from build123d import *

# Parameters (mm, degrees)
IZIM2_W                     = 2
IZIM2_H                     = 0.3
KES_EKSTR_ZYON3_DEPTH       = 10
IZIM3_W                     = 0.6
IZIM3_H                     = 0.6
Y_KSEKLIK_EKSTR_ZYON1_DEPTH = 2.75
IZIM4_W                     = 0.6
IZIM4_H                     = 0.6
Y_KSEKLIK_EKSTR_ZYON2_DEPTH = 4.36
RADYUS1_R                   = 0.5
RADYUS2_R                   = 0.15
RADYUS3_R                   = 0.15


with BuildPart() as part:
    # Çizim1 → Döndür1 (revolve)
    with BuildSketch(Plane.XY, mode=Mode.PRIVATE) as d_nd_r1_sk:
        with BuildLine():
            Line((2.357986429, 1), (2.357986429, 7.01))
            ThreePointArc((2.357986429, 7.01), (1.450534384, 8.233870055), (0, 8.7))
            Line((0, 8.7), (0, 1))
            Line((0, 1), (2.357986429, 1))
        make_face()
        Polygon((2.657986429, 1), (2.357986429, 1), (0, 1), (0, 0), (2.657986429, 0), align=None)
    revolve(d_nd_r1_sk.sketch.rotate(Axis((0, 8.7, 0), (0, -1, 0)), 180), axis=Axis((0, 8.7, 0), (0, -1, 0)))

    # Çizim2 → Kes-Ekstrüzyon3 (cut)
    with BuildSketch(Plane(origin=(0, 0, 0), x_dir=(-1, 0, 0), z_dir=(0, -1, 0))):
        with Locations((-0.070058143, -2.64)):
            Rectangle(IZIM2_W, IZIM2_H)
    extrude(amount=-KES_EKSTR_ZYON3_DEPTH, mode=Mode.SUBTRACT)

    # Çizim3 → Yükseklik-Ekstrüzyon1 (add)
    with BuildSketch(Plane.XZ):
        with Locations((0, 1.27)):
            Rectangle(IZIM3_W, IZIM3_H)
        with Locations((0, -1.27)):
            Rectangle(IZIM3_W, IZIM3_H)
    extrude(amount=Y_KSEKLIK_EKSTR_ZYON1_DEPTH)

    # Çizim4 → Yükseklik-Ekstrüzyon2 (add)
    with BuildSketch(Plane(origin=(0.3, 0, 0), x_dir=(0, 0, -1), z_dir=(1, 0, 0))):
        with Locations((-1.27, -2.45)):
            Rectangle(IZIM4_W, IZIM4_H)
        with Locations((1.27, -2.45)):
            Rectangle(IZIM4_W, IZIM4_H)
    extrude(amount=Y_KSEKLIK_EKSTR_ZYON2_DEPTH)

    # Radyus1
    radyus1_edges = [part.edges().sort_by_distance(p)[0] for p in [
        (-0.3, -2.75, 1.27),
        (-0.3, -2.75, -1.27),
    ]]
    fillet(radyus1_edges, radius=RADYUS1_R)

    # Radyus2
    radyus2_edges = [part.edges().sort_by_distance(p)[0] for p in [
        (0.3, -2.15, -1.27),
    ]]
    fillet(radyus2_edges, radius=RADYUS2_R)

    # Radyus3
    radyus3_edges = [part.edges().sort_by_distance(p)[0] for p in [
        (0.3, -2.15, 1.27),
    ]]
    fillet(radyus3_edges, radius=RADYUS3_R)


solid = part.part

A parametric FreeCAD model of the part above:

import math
import FreeCAD as App
import Part
import Sketcher


def edges_at(feature, points):
    """Names of the edges that pass closest to the given points."""
    edges = feature.Shape.Edges
    near = lambda p: min(range(len(edges)), key=lambda i: edges[i].distToShape(Part.Vertex(*p))[0])
    return sorted({f"Edge{near(p) + 1}" for p in points})


def add_polygon(sketch, points):
    """Adds a closed chain of lines whose ends are joined by coincident constraints."""
    first, n = sketch.GeometryCount, len(points)
    for a, b in zip(points, points[1:] + points[:1]):
        sketch.addGeometry(Part.LineSegment(App.Vector(*a, 0), App.Vector(*b, 0)), False)
    for i in range(n):
        sketch.addConstraint(Sketcher.Constraint("Coincident", first + i, 2, first + (i + 1) % n, 1))

doc = App.newDocument("Part")
body = doc.addObject("PartDesign::Body", "Body")

sketch1 = body.newObject("Sketcher::SketchObject", "Sketch")
sketch1.AttachmentSupport = (doc.getObject("XY_Plane"), [""])
sketch1.MapMode = "FlatFace"
sketch1.addGeometry([
    Part.LineSegment(App.Vector(2.36, 1, 0), App.Vector(2.36, 7.01, 0)),
    Part.ArcOfCircle(Part.Circle(App.Vector(0, 6.21, 0), App.Vector(0, 0, 1), 2.49), math.radians(19), math.radians(90)),
    Part.LineSegment(App.Vector(0, 8.7, 0), App.Vector(0, 0, 0)),
    Part.LineSegment(App.Vector(0, 0, 0), App.Vector(2.66, 0, 0)),
    Part.LineSegment(App.Vector(2.66, 0, 0), App.Vector(2.66, 1, 0)),
    Part.LineSegment(App.Vector(2.66, 1, 0), App.Vector(2.36, 1, 0)),
], False)
sketch1.addConstraint([
    Sketcher.Constraint("Coincident", 0, 2, 1, 1),
    Sketcher.Constraint("Coincident", 1, 2, 2, 1),
    Sketcher.Constraint("Coincident", 2, 2, 3, 1),
    Sketcher.Constraint("Coincident", 3, 2, 4, 1),
    Sketcher.Constraint("Coincident", 4, 2, 5, 1),
    Sketcher.Constraint("Coincident", 5, 2, 0, 1),
    Sketcher.Constraint("Vertical", 0),
    Sketcher.Constraint("Vertical", 2),
    Sketcher.Constraint("Horizontal", 3),
    Sketcher.Constraint("Vertical", 4),
    Sketcher.Constraint("Horizontal", 5),
    Sketcher.Constraint("Coincident", 2, 2, -1, 1),
    Sketcher.Constraint("PointOnObject", 1, 3, -2),
    Sketcher.Constraint("DistanceY", 4, 1, 4, 2, 1.0),
    Sketcher.Constraint("Radius", 1, 2.49),
    Sketcher.Constraint("DistanceX", 5, 2, 5, 1, 0.3),
    Sketcher.Constraint("DistanceY", 2, 2, 2, 1, 8.7),
    Sketcher.Constraint("DistanceY", 0, 1, 0, 2, 6.01),
])
revolution = body.newObject("PartDesign::Revolution", "Revolution")
revolution.Profile = sketch1
revolution.ReferenceAxis = (sketch1, ["V_Axis"])
revolution.Angle = 360

sketch2 = body.newObject("Sketcher::SketchObject", "Sketch001")
sketch2.AttachmentSupport = (doc.getObject("XZ_Plane"), [""])
sketch2.MapMode = "FlatFace"
add_polygon(sketch2, [(1.07, 2.49), (1.07, 2.79), (-0.93, 2.79), (-0.93, 2.49)])
sketch2.addConstraint([
    Sketcher.Constraint("Vertical", 0),
    Sketcher.Constraint("Horizontal", 1),
    Sketcher.Constraint("Vertical", 2),
    Sketcher.Constraint("Horizontal", 3),
    Sketcher.Constraint("DistanceX", 1, 2, 1, 1, 2.0),
    Sketcher.Constraint("DistanceY", 0, 1, 0, 2, 0.3),
    Sketcher.Constraint("DistanceY", -1, 1, 0, 2, 2.79),
    Sketcher.Constraint("DistanceX", -1, 1, 0, 2, 1.070058),
])
pocket1 = body.newObject("PartDesign::Pocket", "Pocket")
pocket1.Profile = sketch2
pocket1.Length = 10

sketch3 = body.newObject("Sketcher::SketchObject", "Sketch002")
sketch3.AttachmentSupport = (doc.getObject("XZ_Plane"), [""])
sketch3.MapMode = "FlatFace"
add_polygon(sketch3, [(-0.3, 1.6), (-0.3, 1), (0.3, 1), (0.3, 1.6)])
add_polygon(sketch3, [(-0.3, -1), (-0.3, -1.6), (0.3, -1.6), (0.3, -1)])
sketch3.addConstraint([
    Sketcher.Constraint("Vertical", 0),
    Sketcher.Constraint("Horizontal", 1),
    Sketcher.Constraint("Vertical", 2),
    Sketcher.Constraint("Horizontal", 3),
    Sketcher.Constraint("Vertical", 4),
    Sketcher.Constraint("Horizontal", 5),
    Sketcher.Constraint("Vertical", 6),
    Sketcher.Constraint("Horizontal", 7),
    Sketcher.Constraint("Symmetric", 2, 2, 4, 2, -1, 1),
    Sketcher.Constraint("Symmetric", 0, 2, 6, 2, -1, 1),
    Sketcher.Constraint("Vertical", 3, 2, 4, 2),
    Sketcher.Constraint("Equal", 7, 0),
    Sketcher.Constraint("DistanceX", 1, 1, 1, 2, 0.6),
    Sketcher.Constraint("DistanceY", -1, 1, 0, 2, 0.97),
])
pad1 = body.newObject("PartDesign::Pad", "Pad")
pad1.Profile = sketch3
pad1.Length = 2.75

sketch4 = body.newObject("Sketcher::SketchObject", "Sketch003")
sketch4.AttachmentSupport = (doc.getObject("YZ_Plane"), [""])
sketch4.MapMode = "FlatFace"
sketch4.AttachmentOffset = App.Placement(App.Vector(0, 0, 0.3), App.Rotation())
add_polygon(sketch4, [(-2.1, 1.6), (-2.8, 1.6), (-2.8, 1), (-2.1, 1)])
add_polygon(sketch4, [(-2.1, -1), (-2.8, -1), (-2.8, -1.6), (-2.1, -1.6)])
sketch4.addConstraint([
    Sketcher.Constraint("Horizontal", 0),
    Sketcher.Constraint("Vertical", 1),
    Sketcher.Constraint("Horizontal", 2),
    Sketcher.Constraint("Vertical", 3),
    Sketcher.Constraint("Horizontal", 4),
    Sketcher.Constraint("Vertical", 5),
    Sketcher.Constraint("Horizontal", 6),
    Sketcher.Constraint("Vertical", 7),
    Sketcher.Constraint("Symmetric", 1, 2, 4, 2, -1),
    Sketcher.Constraint("Symmetric", 3, 2, 6, 2, -1),
    Sketcher.Constraint("Equal", 6, 1),
    Sketcher.Constraint("DistanceX", 0, 2, 0, 1, 0.6),
    Sketcher.Constraint("DistanceX", 0, 2, -1, 1, 2.75),
    Sketcher.Constraint("DistanceY", -1, 1, 0, 2, 1.57),
])
pad2 = body.newObject("PartDesign::Pad", "Pad001")
pad2.Profile = sketch4
pad2.Length = 4.36
doc.recompute()

fillet = body.newObject("PartDesign::Fillet", "Fillet")
fillet.Base = (pad2, edges_at(pad2, [(-0.3, -2.75, 1.27), (-0.3, -2.75, -1.27)]))
fillet.Radius = 0.5
doc.recompute()

fillet2 = body.newObject("PartDesign::Fillet", "Fillet001")
fillet2.Base = (fillet, edges_at(fillet, [(0.3, -2.15, -1.27)]))
fillet2.Radius = 0.15
doc.recompute()

fillet3 = body.newObject("PartDesign::Fillet", "Fillet002")
fillet3.Base = (fillet2, edges_at(fillet2, [(0.3, -2.15, 1.27)]))
fillet3.Radius = 0.15

doc.recompute()
